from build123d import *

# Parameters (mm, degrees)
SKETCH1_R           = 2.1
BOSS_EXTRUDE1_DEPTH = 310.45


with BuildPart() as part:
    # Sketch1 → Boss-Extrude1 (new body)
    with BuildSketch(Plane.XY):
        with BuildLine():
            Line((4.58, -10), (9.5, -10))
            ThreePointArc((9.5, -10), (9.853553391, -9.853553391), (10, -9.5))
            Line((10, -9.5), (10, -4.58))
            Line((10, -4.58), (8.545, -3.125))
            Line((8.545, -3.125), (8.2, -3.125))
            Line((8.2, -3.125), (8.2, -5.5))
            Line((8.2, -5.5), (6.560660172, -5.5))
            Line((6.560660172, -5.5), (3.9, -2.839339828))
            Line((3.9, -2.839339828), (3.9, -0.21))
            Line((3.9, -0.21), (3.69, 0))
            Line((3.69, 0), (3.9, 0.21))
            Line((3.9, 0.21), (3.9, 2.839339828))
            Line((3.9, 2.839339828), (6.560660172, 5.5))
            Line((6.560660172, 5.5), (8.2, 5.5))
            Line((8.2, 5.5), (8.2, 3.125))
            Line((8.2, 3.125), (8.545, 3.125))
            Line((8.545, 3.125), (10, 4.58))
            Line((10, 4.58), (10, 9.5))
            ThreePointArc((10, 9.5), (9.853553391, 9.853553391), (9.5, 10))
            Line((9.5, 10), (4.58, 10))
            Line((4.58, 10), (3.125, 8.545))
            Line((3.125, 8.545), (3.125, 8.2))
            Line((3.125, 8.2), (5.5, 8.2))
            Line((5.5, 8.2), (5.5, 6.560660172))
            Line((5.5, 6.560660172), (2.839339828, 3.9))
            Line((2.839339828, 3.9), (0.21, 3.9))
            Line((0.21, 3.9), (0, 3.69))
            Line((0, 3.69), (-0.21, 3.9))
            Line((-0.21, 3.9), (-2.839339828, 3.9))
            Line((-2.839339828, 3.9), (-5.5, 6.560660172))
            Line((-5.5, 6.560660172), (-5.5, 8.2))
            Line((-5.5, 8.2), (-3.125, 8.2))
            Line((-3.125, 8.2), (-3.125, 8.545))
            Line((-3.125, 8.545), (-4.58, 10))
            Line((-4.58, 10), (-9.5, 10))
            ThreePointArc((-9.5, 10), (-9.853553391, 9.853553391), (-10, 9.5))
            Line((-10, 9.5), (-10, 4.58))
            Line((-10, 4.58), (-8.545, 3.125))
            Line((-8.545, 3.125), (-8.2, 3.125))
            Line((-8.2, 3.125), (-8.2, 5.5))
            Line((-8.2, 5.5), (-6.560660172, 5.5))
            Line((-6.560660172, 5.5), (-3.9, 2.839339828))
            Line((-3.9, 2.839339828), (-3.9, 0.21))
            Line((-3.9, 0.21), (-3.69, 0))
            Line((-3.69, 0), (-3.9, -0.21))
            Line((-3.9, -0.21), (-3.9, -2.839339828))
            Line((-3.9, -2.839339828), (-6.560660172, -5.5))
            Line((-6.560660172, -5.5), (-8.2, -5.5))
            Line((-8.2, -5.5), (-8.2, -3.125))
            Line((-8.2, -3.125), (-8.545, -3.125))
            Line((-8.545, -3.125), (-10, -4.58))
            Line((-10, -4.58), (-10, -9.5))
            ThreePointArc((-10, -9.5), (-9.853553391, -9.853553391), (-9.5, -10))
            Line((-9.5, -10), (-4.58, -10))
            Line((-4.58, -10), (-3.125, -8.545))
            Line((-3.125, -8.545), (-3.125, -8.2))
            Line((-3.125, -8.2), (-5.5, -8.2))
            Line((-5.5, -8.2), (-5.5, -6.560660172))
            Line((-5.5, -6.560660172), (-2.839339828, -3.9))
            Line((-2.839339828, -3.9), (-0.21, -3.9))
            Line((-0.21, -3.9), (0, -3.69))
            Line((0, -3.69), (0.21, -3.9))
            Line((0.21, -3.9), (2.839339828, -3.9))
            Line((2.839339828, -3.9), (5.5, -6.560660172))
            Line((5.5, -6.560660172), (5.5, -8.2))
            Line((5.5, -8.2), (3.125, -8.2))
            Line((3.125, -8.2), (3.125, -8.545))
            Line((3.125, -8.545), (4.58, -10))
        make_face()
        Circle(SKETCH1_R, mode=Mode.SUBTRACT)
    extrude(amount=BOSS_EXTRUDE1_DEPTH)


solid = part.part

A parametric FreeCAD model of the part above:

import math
import FreeCAD as App
import Part
import Sketcher

doc = App.newDocument("Part")
body = doc.addObject("PartDesign::Body", "Body")

sketch1 = body.newObject("Sketcher::SketchObject", "Sketch")
sketch1.AttachmentSupport = (doc.getObject("XY_Plane"), [""])
sketch1.MapMode = "FlatFace"
sketch1.addGeometry(Part.LineSegment(App.Vector(4.58, -10, 0), App.Vector(9.5, -10, 0)), False)
sketch1.addGeometry(Part.ArcOfCircle(Part.Circle(App.Vector(9.5, -9.5, 0), App.Vector(0, 0, 1), 0.5), math.radians(-90), math.radians(0)), False)
sketch1.addGeometry(Part.LineSegment(App.Vector(10, -9.5, 0), App.Vector(10, -4.58, 0)), False)
sketch1.addGeometry(Part.LineSegment(App.Vector(10, -4.58, 0), App.Vector(8.54, -3.12, 0)), False)
sketch1.addGeometry(Part.LineSegment(App.Vector(8.54, -3.12, 0), App.Vector(8.2, -3.12, 0)), False)
sketch1.addGeometry(Part.LineSegment(App.Vector(8.2, -3.12, 0), App.Vector(8.2, -5.5, 0)), False)
sketch1.addGeometry(Part.LineSegment(App.Vector(8.2, -5.5, 0), App.Vector(6.56, -5.5, 0)), False)
sketch1.addGeometry(Part.LineSegment(App.Vector(6.56, -5.5, 0), App.Vector(3.9, -2.84, 0)), False)
sketch1.addGeometry(Part.LineSegment(App.Vector(3.9, -2.84, 0), App.Vector(3.9, -0.21, 0)), False)
sketch1.addGeometry(Part.LineSegment(App.Vector(3.9, -0.21, 0), App.Vector(3.69, 0, 0)), False)
sketch1.addGeometry(Part.LineSegment(App.Vector(3.69, 0, 0), App.Vector(3.9, 0.21, 0)), False)
sketch1.addGeometry(Part.LineSegment(App.Vector(3.9, 0.21, 0), App.Vector(3.9, 2.84, 0)), False)
sketch1.addGeometry(Part.LineSegment(App.Vector(3.9, 2.84, 0), App.Vector(6.56, 5.5, 0)), False)
sketch1.addGeometry(Part.LineSegment(App.Vector(6.56, 5.5, 0), App.Vector(8.2, 5.5, 0)), False)
sketch1.addGeometry(Part.LineSegment(App.Vector(8.2, 5.5, 0), App.Vector(8.2, 3.12, 0)), False)
sketch1.addGeometry(Part.LineSegment(App.Vector(8.2, 3.12, 0), App.Vector(8.54, 3.12, 0)), False)
sketch1.addGeometry(Part.LineSegment(App.Vector(8.54, 3.12, 0), App.Vector(10, 4.58, 0)), False)
sketch1.addGeometry(Part.LineSegment(App.Vector(10, 4.58, 0), App.Vector(10, 9.5, 0)), False)
sketch1.addGeometry(Part.ArcOfCircle(Part.Circle(App.Vector(9.5, 9.5, 0), App.Vector(0, 0, 1), 0.5), math.radians(0), math.radians(90)), False)
sketch1.addGeometry(Part.LineSegment(App.Vector(9.5, 10, 0), App.Vector(4.58, 10, 0)), False)
sketch1.addGeometry(Part.LineSegment(App.Vector(4.58, 10, 0), App.Vector(3.12, 8.54, 0)), False)
sketch1.addGeometry(Part.LineSegment(App.Vector(3.12, 8.54, 0), App.Vector(3.12, 8.2, 0)), False)
sketch1.addGeometry(Part.LineSegment(App.Vector(3.12, 8.2, 0), App.Vector(5.5, 8.2, 0)), False)
sketch1.addGeometry(Part.LineSegment(App.Vector(5.5, 8.2, 0), App.Vector(5.5, 6.56, 0)), False)
sketch1.addGeometry(Part.LineSegment(App.Vector(5.5, 6.56, 0), App.Vector(2.84, 3.9, 0)), False)
sketch1.addGeometry(Part.LineSegment(App.Vector(2.84, 3.9, 0), App.Vector(0.21, 3.9, 0)), False)
sketch1.addGeometry(Part.LineSegment(App.Vector(0.21, 3.9, 0), App.Vector(0, 3.69, 0)), False)
sketch1.addGeometry(Part.LineSegment(App.Vector(0, 3.69, 0), App.Vector(-0.21, 3.9, 0)), False)
sketch1.addGeometry(Part.LineSegment(App.Vector(-0.21, 3.9, 0), App.Vector(-2.84, 3.9, 0)), False)
sketch1.addGeometry(Part.LineSegment(App.Vector(-2.84, 3.9, 0), App.Vector(-5.5, 6.56, 0)), False)
sketch1.addGeometry(Part.LineSegment(App.Vector(-5.5, 6.56, 0), App.Vector(-5.5, 8.2, 0)), False)
sketch1.addGeometry(Part.LineSegment(App.Vector(-5.5, 8.2, 0), App.Vector(-3.12, 8.2, 0)), False)
sketch1.addGeometry(Part.LineSegment(App.Vector(-3.12, 8.2, 0), App.Vector(-3.12, 8.54, 0)), False)
sketch1.addGeometry(Part.LineSegment(App.Vector(-3.12, 8.54, 0), App.Vector(-4.58, 10, 0)), False)
sketch1.addGeometry(Part.LineSegment(App.Vector(-4.58, 10, 0), App.Vector(-9.5, 10, 0)), False)
sketch1.addGeometry(Part.ArcOfCircle(Part.Circle(App.Vector(-9.5, 9.5, 0), App.Vector(0, 0, 1), 0.5), math.radians(90), math.radians(180)), False)
sketch1.addGeometry(Part.LineSegment(App.Vector(-10, 9.5, 0), App.Vector(-10, 4.58, 0)), False)
sketch1.addGeometry(Part.LineSegment(App.Vector(-10, 4.58, 0), App.Vector(-8.54, 3.12, 0)), False)
sketch1.addGeometry(Part.LineSegment(App.Vector(-8.54, 3.12, 0), App.Vector(-8.2, 3.12, 0)), False)
sketch1.addGeometry(Part.LineSegment(App.Vector(-8.2, 3.12, 0), App.Vector(-8.2, 5.5, 0)), False)
sketch1.addGeometry(Part.LineSegment(App.Vector(-8.2, 5.5, 0), App.Vector(-6.56, 5.5, 0)), False)
sketch1.addGeometry(Part.LineSegment(App.Vector(-6.56, 5.5, 0), App.Vector(-3.9, 2.84, 0)), False)
sketch1.addGeometry(Part.LineSegment(App.Vector(-3.9, 2.84, 0), App.Vector(-3.9, 0.21, 0)), False)
sketch1.addGeometry(Part.LineSegment(App.Vector(-3.9, 0.21, 0), App.Vector(-3.69, 0, 0)), False)
sketch1.addGeometry(Part.LineSegment(App.Vector(-3.69, 0, 0), App.Vector(-3.9, -0.21, 0)), False)
sketch1.addGeometry(Part.LineSegment(App.Vector(-3.9, -0.21, 0), App.Vector(-3.9, -2.84, 0)), False)
sketch1.addGeometry(Part.LineSegment(App.Vector(-3.9, -2.84, 0), App.Vector(-6.56, -5.5, 0)), False)
sketch1.addGeometry(Part.LineSegment(App.Vector(-6.56, -5.5, 0), App.Vector(-8.2, -5.5, 0)), False)
sketch1.addGeometry(Part.LineSegment(App.Vector(-8.2, -5.5, 0), App.Vector(-8.2, -3.12, 0)), False)
sketch1.addGeometry(Part.LineSegment(App.Vector(-8.2, -3.12, 0), App.Vector(-8.54, -3.12, 0)), False)
sketch1.addGeometry(Part.LineSegment(App.Vector(-8.54, -3.12, 0), App.Vector(-10, -4.58, 0)), False)
sketch1.addGeometry(Part.LineSegment(App.Vector(-10, -4.58, 0), App.Vector(-10, -9.5, 0)), False)
sketch1.addGeometry(Part.ArcOfCircle(Part.Circle(App.Vector(-9.5, -9.5, 0), App.Vector(0, 0, 1), 0.5), math.radians(180), math.radians(270)), False)
sketch1.addGeometry(Part.LineSegment(App.Vector(-9.5, -10, 0), App.Vector(-4.58, -10, 0)), False)
sketch1.addGeometry(Part.LineSegment(App.Vector(-4.58, -10, 0), App.Vector(-3.12, -8.54, 0)), False)
sketch1.addGeometry(Part.LineSegment(App.Vector(-3.12, -8.54, 0), App.Vector(-3.12, -8.2, 0)), False)
sketch1.addGeometry(Part.LineSegment(App.Vector(-3.12, -8.2, 0), App.Vector(-5.5, -8.2, 0)), False)
sketch1.addGeometry(Part.LineSegment(App.Vector(-5.5, -8.2, 0), App.Vector(-5.5, -6.56, 0)), False)
sketch1.addGeometry(Part.LineSegment(App.Vector(-5.5, -6.56, 0), App.Vector(-2.84, -3.9, 0)), False)
sketch1.addGeometry(Part.LineSegment(App.Vector(-2.84, -3.9, 0), App.Vector(-0.21, -3.9, 0)), False)
sketch1.addGeometry(Part.LineSegment(App.Vector(-0.21, -3.9, 0), App.Vector(0, -3.69, 0)), False)
sketch1.addGeometry(Part.LineSegment(App.Vector(0, -3.69, 0), App.Vector(0.21, -3.9, 0)), False)
sketch1.addGeometry(Part.LineSegment(App.Vector(0.21, -3.9, 0), App.Vector(2.84, -3.9, 0)), False)
sketch1.addGeometry(Part.LineSegment(App.Vector(2.84, -3.9, 0), App.Vector(5.5, -6.56, 0)), False)
sketch1.addGeometry(Part.LineSegment(App.Vector(5.5, -6.56, 0), App.Vector(5.5, -8.2, 0)), False)
sketch1.addGeometry(Part.LineSegment(App.Vector(5.5, -8.2, 0), App.Vector(3.12, -8.2, 0)), False)
sketch1.addGeometry(Part.LineSegment(App.Vector(3.12, -8.2, 0), App.Vector(3.12, -8.54, 0)), False)
sketch1.addGeometry(Part.LineSegment(App.Vector(3.12, -8.54, 0), App.Vector(4.58, -10, 0)), False)
sketch1.addGeometry(Part.Circle(App.Vector(0, 0, 0), App.Vector(0, 0, 1), 2.1), False)
sketch1.addConstraint(Sketcher.Constraint("Tangent", 0, 2, 1, 1))
sketch1.addConstraint(Sketcher.Constraint("Tangent", 1, 2, 2, 1))
sketch1.addConstraint(Sketcher.Constraint("Coincident", 2, 2, 3, 1))
sketch1.addConstraint(Sketcher.Constraint("Coincident", 3, 2, 4, 1))
sketch1.addConstraint(Sketcher.Constraint("Coincident", 4, 2, 5, 1))
sketch1.addConstraint(Sketcher.Constraint("Coincident", 5, 2, 6, 1))
sketch1.addConstraint(Sketcher.Constraint("Coincident", 6, 2, 7, 1))
sketch1.addConstraint(Sketcher.Constraint("Coincident", 7, 2, 8, 1))
sketch1.addConstraint(Sketcher.Constraint("Coincident", 8, 2, 9, 1))
sketch1.addConstraint(Sketcher.Constraint("Coincident", 9, 2, 10, 1))
sketch1.addConstraint(Sketcher.Constraint("Coincident", 10, 2, 11, 1))
sketch1.addConstraint(Sketcher.Constraint("Coincident", 11, 2, 12, 1))
sketch1.addConstraint(Sketcher.Constraint("Coincident", 12, 2, 13, 1))
sketch1.addConstraint(Sketcher.Constraint("Coincident", 13, 2, 14, 1))
sketch1.addConstraint(Sketcher.Constraint("Coincident", 14, 2, 15, 1))
sketch1.addConstraint(Sketcher.Constraint("Coincident", 15, 2, 16, 1))
sketch1.addConstraint(Sketcher.Constraint("Coincident", 16, 2, 17, 1))
sketch1.addConstraint(Sketcher.Constraint("Tangent", 17, 2, 18, 1))
sketch1.addConstraint(Sketcher.Constraint("Tangent", 18, 2, 19, 1))
sketch1.addConstraint(Sketcher.Constraint("Coincident", 19, 2, 20, 1))
sketch1.addConstraint(Sketcher.Constraint("Coincident", 20, 2, 21, 1))
sketch1.addConstraint(Sketcher.Constraint("Coincident", 21, 2, 22, 1))
sketch1.addConstraint(Sketcher.Constraint("Coincident", 22, 2, 23, 1))
sketch1.addConstraint(Sketcher.Constraint("Coincident", 23, 2, 24, 1))
sketch1.addConstraint(Sketcher.Constraint("Coincident", 24, 2, 25, 1))
sketch1.addConstraint(Sketcher.Constraint("Coincident", 25, 2, 26, 1))
sketch1.addConstraint(Sketcher.Constraint("Coincident", 26, 2, 27, 1))
sketch1.addConstraint(Sketcher.Constraint("Coincident", 27, 2, 28, 1))
sketch1.addConstraint(Sketcher.Constraint("Coincident", 28, 2, 29, 1))
sketch1.addConstraint(Sketcher.Constraint("Coincident", 29, 2, 30, 1))
sketch1.addConstraint(Sketcher.Constraint("Coincident", 30, 2, 31, 1))
sketch1.addConstraint(Sketcher.Constraint("Coincident", 31, 2, 32, 1))
sketch1.addConstraint(Sketcher.Constraint("Coincident", 32, 2, 33, 1))
sketch1.addConstraint(Sketcher.Constraint("Coincident", 33, 2, 34, 1))
sketch1.addConstraint(Sketcher.Constraint("Tangent", 34, 2, 35, 1))
sketch1.addConstraint(Sketcher.Constraint("Tangent", 35, 2, 36, 1))
sketch1.addConstraint(Sketcher.Constraint("Coincident", 36, 2, 37, 1))
sketch1.addConstraint(Sketcher.Constraint("Coincident", 37, 2, 38, 1))
sketch1.addConstraint(Sketcher.Constraint("Coincident", 38, 2, 39, 1))
sketch1.addConstraint(Sketcher.Constraint("Coincident", 39, 2, 40, 1))
sketch1.addConstraint(Sketcher.Constraint("Coincident", 40, 2, 41, 1))
sketch1.addConstraint(Sketcher.Constraint("Coincident", 41, 2, 42, 1))
sketch1.addConstraint(Sketcher.Constraint("Coincident", 42, 2, 43, 1))
sketch1.addConstraint(Sketcher.Constraint("Coincident", 43, 2, 44, 1))
sketch1.addConstraint(Sketcher.Constraint("Coincident", 44, 2, 45, 1))
sketch1.addConstraint(Sketcher.Constraint("Coincident", 45, 2, 46, 1))
sketch1.addConstraint(Sketcher.Constraint("Coincident", 46, 2, 47, 1))
sketch1.addConstraint(Sketcher.Constraint("Coincident", 47, 2, 48, 1))
sketch1.addConstraint(Sketcher.Constraint("Coincident", 48, 2, 49, 1))
sketch1.addConstraint(Sketcher.Constraint("Coincident", 49, 2, 50, 1))
sketch1.addConstraint(Sketcher.Constraint("Coincident", 50, 2, 51, 1))
sketch1.addConstraint(Sketcher.Constraint("Tangent", 51, 2, 52, 1))
sketch1.addConstraint(Sketcher.Constraint("Tangent", 52, 2, 53, 1))
sketch1.addConstraint(Sketcher.Constraint("Coincident", 53, 2, 54, 1))
sketch1.addConstraint(Sketcher.Constraint("Coincident", 54, 2, 55, 1))
sketch1.addConstraint(Sketcher.Constraint("Coincident", 55, 2, 56, 1))
sketch1.addConstraint(Sketcher.Constraint("Coincident", 56, 2, 57, 1))
sketch1.addConstraint(Sketcher.Constraint("Coincident", 57, 2, 58, 1))
sketch1.addConstraint(Sketcher.Constraint("Coincident", 58, 2, 59, 1))
sketch1.addConstraint(Sketcher.Constraint("Coincident", 59, 2, 60, 1))
sketch1.addConstraint(Sketcher.Constraint("Coincident", 60, 2, 61, 1))
sketch1.addConstraint(Sketcher.Constraint("Coincident", 61, 2, 62, 1))
sketch1.addConstraint(Sketcher.Constraint("Coincident", 62, 2, 63, 1))
sketch1.addConstraint(Sketcher.Constraint("Coincident", 63, 2, 64, 1))
sketch1.addConstraint(Sketcher.Constraint("Coincident", 64, 2, 65, 1))
sketch1.addConstraint(Sketcher.Constraint("Coincident", 65, 2, 66, 1))
sketch1.addConstraint(Sketcher.Constraint("Coincident", 66, 2, 67, 1))
sketch1.addConstraint(Sketcher.Constraint("Coincident", 67, 2, 0, 1))
sketch1.addConstraint(Sketcher.Constraint("Horizontal", 0))
sketch1.addConstraint(Sketcher.Constraint("Vertical", 2))
sketch1.addConstraint(Sketcher.Constraint("Horizontal", 4))
sketch1.addConstraint(Sketcher.Constraint("Vertical", 5))
sketch1.addConstraint(Sketcher.Constraint("Horizontal", 6))
sketch1.addConstraint(Sketcher.Constraint("Vertical", 8))
sketch1.addConstraint(Sketcher.Constraint("Vertical", 11))
sketch1.addConstraint(Sketcher.Constraint("Horizontal", 13))
sketch1.addConstraint(Sketcher.Constraint("Vertical", 14))
sketch1.addConstraint(Sketcher.Constraint("Horizontal", 15))
sketch1.addConstraint(Sketcher.Constraint("Vertical", 17))
sketch1.addConstraint(Sketcher.Constraint("Horizontal", 19))
sketch1.addConstraint(Sketcher.Constraint("Vertical", 21))
sketch1.addConstraint(Sketcher.Constraint("Horizontal", 22))
sketch1.addConstraint(Sketcher.Constraint("Vertical", 23))
sketch1.addConstraint(Sketcher.Constraint("Horizontal", 25))
sketch1.addConstraint(Sketcher.Constraint("Horizontal", 28))
sketch1.addConstraint(Sketcher.Constraint("Vertical", 30))
sketch1.addConstraint(Sketcher.Constraint("Horizontal", 31))
sketch1.addConstraint(Sketcher.Constraint("Vertical", 32))
sketch1.addConstraint(Sketcher.Constraint("Horizontal", 34))
sketch1.addConstraint(Sketcher.Constraint("Vertical", 36))
sketch1.addConstraint(Sketcher.Constraint("Horizontal", 38))
sketch1.addConstraint(Sketcher.Constraint("Vertical", 39))
sketch1.addConstraint(Sketcher.Constraint("Horizontal", 40))
sketch1.addConstraint(Sketcher.Constraint("Vertical", 42))
sketch1.addConstraint(Sketcher.Constraint("Vertical", 45))
sketch1.addConstraint(Sketcher.Constraint("Horizontal", 47))
sketch1.addConstraint(Sketcher.Constraint("Vertical", 48))
sketch1.addConstraint(Sketcher.Constraint("Horizontal", 49))
sketch1.addConstraint(Sketcher.Constraint("Vertical", 51))
sketch1.addConstraint(Sketcher.Constraint("Horizontal", 53))
sketch1.addConstraint(Sketcher.Constraint("Vertical", 55))
sketch1.addConstraint(Sketcher.Constraint("Horizontal", 56))
sketch1.addConstraint(Sketcher.Constraint("Vertical", 57))
sketch1.addConstraint(Sketcher.Constraint("Horizontal", 59))
sketch1.addConstraint(Sketcher.Constraint("Horizontal", 62))
sketch1.addConstraint(Sketcher.Constraint("Vertical", 64))
sketch1.addConstraint(Sketcher.Constraint("Horizontal", 65))
sketch1.addConstraint(Sketcher.Constraint("Vertical", 66))
sketch1.addConstraint(Sketcher.Constraint("Coincident", 68, 3, -1, 1))
sketch1.addConstraint(Sketcher.Constraint("Equal", 1, 18))
sketch1.addConstraint(Sketcher.Constraint("Equal", 18, 35))
sketch1.addConstraint(Sketcher.Constraint("Equal", 35, 52))
sketch1.addConstraint(Sketcher.Constraint("Symmetric", 1, 3, 35, 3, -1, 1))
sketch1.addConstraint(Sketcher.Constraint("Symmetric", 18, 3, 52, 3, -1, 1))
sketch1.addConstraint(Sketcher.Constraint("Symmetric", 3, 2, 37, 2, -1, 1))
sketch1.addConstraint(Sketcher.Constraint("Symmetric", 5, 2, 39, 2, -1, 1))
sketch1.addConstraint(Sketcher.Constraint("Symmetric", 7, 2, 41, 2, -1, 1))
sketch1.addConstraint(Sketcher.Constraint("Symmetric", 9, 2, 43, 2, -1, 1))
sketch1.addConstraint(Sketcher.Constraint("Symmetric", 10, 2, 44, 2, -1, 1))
sketch1.addConstraint(Sketcher.Constraint("Symmetric", 12, 2, 46, 2, -1, 1))
sketch1.addConstraint(Sketcher.Constraint("Symmetric", 14, 2, 48, 2, -1, 1))
sketch1.addConstraint(Sketcher.Constraint("Symmetric", 20, 2, 54, 2, -1, 1))
sketch1.addConstraint(Sketcher.Constraint("Symmetric", 22, 2, 56, 2, -1, 1))
sketch1.addConstraint(Sketcher.Constraint("Symmetric", 24, 2, 58, 2, -1, 1))
sketch1.addConstraint(Sketcher.Constraint("Symmetric", 26, 2, 60, 2, -1, 1))
sketch1.addConstraint(Sketcher.Constraint("Symmetric", 27, 2, 61, 2, -1, 1))
sketch1.addConstraint(Sketcher.Constraint("Symmetric", 29, 2, 63, 2, -1, 1))
sketch1.addConstraint(Sketcher.Constraint("Symmetric", 31, 2, 65, 2, -1, 1))
sketch1.addConstraint(Sketcher.Constraint("Symmetric", 18, 3, 35, 3, -2))
sketch1.addConstraint(Sketcher.Constraint("Symmetric", 25, 2, 27, 2, -2))
sketch1.addConstraint(Sketcher.Constraint("Symmetric", 23, 2, 29, 2, -2))
sketch1.addConstraint(Sketcher.Constraint("Symmetric", 21, 2, 31, 2, -2))
sketch1.addConstraint(Sketcher.Constraint("Symmetric", 15, 2, 37, 2, -2))
sketch1.addConstraint(Sketcher.Constraint("Symmetric", 13, 2, 39, 2, -2))
sketch1.addConstraint(Sketcher.Constraint("Symmetric", 11, 2, 41, 2, -2))
sketch1.addConstraint(Sketcher.Constraint("PointOnObject", 9, 2, -1))
sketch1.addConstraint(Sketcher.Constraint("PointOnObject", 26, 2, -2))
sketch1.addConstraint(Sketcher.Constraint("Parallel", 3, 7))
sketch1.addConstraint(Sketcher.Constraint("Parallel", 7, 9))
sketch1.addConstraint(Sketcher.Constraint("Perpendicular", 9, 10))
sketch1.addConstraint(Sketcher.Constraint("Parallel", 10, 12))
sketch1.addConstraint(Sketcher.Constraint("Parallel", 12, 16))
sketch1.addConstraint(Sketcher.Constraint("Parallel", 16, 20))
sketch1.addConstraint(Sketcher.Constraint("Parallel", 20, 24))
sketch1.addConstraint(Sketcher.Constraint("Parallel", 24, 26))
sketch1.addConstraint(Sketcher.Constraint("Perpendicular", 26, 27))
sketch1.addConstraint(Sketcher.Constraint("Parallel", 27, 29))
sketch1.addConstraint(Sketcher.Constraint("Parallel", 29, 33))
sketch1.addConstraint(Sketcher.Constraint("Parallel", 33, 37))
sketch1.addConstraint(Sketcher.Constraint("Parallel", 37, 41))
sketch1.addConstraint(Sketcher.Constraint("Parallel", 41, 43))
sketch1.addConstraint(Sketcher.Constraint("Parallel", 44, 46))
sketch1.addConstraint(Sketcher.Constraint("Parallel", 46, 50))
sketch1.addConstraint(Sketcher.Constraint("Parallel", 50, 54))
sketch1.addConstraint(Sketcher.Constraint("Parallel", 54, 58))
sketch1.addConstraint(Sketcher.Constraint("Parallel", 58, 60))
sketch1.addConstraint(Sketcher.Constraint("Parallel", 61, 63))
sketch1.addConstraint(Sketcher.Constraint("Parallel", 63, 67))
sketch1.addConstraint(Sketcher.Constraint("Horizontal", 20, 2, 32, 2))
sketch1.addConstraint(Sketcher.Constraint("Horizontal", 2, 2, 50, 2))
sketch1.addConstraint(Sketcher.Constraint("Horizontal", 54, 2, 66, 2))
sketch1.addConstraint(Sketcher.Constraint("Equal", 53, 2))
sketch1.addConstraint(Sketcher.Constraint("Equal", 65, 5))
sketch1.addConstraint(Sketcher.Constraint("Equal", 62, 8))
sketch1.addConstraint(Sketcher.Constraint("Equal", 49, 21))
sketch1.addConstraint(Sketcher.Constraint("Equal", 47, 23))
sketch1.addConstraint(Sketcher.Constraint("Equal", 16, 20))
sketch1.addConstraint(Sketcher.Constraint("Equal", 12, 24))
sketch1.addConstraint(Sketcher.Constraint("Equal", 10, 26))
sketch1.addConstraint(Sketcher.Constraint("Diameter", 68, 4.2))
sketch1.addConstraint(Sketcher.Constraint("Radius", 1, 0.5))
sketch1.addConstraint(Sketcher.Constraint("DistanceY", 0, 2, -1, 1, 10.0))
sketch1.addConstraint(Sketcher.Constraint("DistanceX", 0, 1, 0, 2, 4.92))
sketch1.addConstraint(Sketcher.Constraint("DistanceX", -1, 1, 4, 2, 8.2))
sketch1.addConstraint(Sketcher.Constraint("DistanceY", 5, 2, -1, 1, 5.5))
sketch1.addConstraint(Sketcher.Constraint("DistanceX", -1, 1, 7, 2, 3.9))
sketch1.addConstraint(Sketcher.Constraint("DistanceX", 4, 2, 4, 1, 0.345))
sketch1.addConstraint(Sketcher.Constraint("DistanceY", 8, 2, -1, 1, 0.21))
sketch1.addConstraint(Sketcher.Constraint("DistanceX", 6, 2, 6, 1, 1.63934))
pad1 = body.newObject("PartDesign::Pad", "Pad")
pad1.Profile = sketch1
pad1.Length = 310.45

doc.recompute()
